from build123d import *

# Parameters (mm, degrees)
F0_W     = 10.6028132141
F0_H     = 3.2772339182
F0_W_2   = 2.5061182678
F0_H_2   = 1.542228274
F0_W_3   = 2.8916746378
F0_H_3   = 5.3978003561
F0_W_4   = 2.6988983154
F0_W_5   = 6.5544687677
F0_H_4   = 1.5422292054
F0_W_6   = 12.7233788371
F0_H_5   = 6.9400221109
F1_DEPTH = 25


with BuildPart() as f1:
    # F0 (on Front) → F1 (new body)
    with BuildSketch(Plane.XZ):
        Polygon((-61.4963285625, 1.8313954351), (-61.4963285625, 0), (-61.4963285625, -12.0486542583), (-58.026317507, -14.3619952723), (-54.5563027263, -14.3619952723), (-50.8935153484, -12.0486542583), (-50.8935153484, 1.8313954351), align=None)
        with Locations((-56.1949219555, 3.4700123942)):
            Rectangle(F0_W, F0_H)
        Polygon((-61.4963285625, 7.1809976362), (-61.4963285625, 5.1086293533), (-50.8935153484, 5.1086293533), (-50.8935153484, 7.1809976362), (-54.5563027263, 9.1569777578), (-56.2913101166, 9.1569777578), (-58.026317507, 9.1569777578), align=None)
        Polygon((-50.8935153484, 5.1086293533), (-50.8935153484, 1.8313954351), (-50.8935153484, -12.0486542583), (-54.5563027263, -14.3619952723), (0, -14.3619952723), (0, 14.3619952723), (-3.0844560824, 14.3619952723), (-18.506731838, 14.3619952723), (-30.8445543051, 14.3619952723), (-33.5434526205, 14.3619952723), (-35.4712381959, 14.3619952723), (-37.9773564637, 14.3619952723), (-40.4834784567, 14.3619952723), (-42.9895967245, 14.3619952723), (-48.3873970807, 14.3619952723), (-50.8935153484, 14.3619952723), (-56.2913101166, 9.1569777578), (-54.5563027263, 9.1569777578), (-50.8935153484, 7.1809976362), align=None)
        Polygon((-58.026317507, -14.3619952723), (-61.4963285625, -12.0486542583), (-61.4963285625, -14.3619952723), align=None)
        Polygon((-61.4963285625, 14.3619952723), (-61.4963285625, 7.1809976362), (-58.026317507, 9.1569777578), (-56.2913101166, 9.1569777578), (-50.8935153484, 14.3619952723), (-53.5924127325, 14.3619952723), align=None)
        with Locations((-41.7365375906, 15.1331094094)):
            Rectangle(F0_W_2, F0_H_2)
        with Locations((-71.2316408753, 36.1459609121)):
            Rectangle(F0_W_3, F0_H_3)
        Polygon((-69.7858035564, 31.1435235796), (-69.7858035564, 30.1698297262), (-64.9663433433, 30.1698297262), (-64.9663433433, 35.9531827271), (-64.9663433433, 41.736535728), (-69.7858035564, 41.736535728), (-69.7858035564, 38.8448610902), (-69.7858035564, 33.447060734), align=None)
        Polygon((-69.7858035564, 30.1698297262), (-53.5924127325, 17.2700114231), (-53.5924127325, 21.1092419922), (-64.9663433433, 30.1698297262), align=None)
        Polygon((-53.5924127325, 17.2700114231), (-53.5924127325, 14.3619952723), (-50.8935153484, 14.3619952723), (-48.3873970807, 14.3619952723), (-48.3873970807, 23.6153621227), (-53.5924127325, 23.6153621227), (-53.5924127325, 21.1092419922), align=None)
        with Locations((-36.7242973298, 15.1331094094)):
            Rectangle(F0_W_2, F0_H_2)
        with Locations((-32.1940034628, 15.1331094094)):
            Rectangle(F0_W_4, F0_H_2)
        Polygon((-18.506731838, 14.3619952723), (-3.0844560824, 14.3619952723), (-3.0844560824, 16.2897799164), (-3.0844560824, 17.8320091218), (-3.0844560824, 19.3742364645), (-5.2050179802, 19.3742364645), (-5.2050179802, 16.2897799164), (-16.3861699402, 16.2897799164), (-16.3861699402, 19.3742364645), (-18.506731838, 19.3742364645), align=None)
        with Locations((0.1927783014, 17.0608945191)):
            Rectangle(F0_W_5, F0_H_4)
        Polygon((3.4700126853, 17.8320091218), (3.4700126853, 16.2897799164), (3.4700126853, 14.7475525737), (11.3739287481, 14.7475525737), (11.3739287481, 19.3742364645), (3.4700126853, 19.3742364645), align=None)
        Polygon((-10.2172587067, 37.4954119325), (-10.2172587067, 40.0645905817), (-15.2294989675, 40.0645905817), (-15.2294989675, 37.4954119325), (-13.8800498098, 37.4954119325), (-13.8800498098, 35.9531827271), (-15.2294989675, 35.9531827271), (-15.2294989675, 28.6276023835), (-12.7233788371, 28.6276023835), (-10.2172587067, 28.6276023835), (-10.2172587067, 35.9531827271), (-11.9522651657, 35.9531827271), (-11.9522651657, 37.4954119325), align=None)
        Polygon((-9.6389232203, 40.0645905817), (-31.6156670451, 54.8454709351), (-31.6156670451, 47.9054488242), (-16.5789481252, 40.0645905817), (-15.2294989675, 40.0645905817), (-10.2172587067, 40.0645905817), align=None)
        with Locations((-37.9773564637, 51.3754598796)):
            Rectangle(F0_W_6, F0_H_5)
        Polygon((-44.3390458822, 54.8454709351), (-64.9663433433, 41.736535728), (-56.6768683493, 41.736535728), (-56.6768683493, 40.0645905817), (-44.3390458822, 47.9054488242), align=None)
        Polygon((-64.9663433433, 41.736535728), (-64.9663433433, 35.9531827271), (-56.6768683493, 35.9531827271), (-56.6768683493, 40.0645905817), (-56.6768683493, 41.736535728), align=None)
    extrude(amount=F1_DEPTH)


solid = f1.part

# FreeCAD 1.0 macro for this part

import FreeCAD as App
import Part
import Sketcher


def add_polygon(sketch, points):
    """Adds a closed chain of lines whose ends are joined by coincident constraints."""
    first, n = sketch.GeometryCount, len(points)
    for a, b in zip(points, points[1:] + points[:1]):
        sketch.addGeometry(Part.LineSegment(App.Vector(*a, 0), App.Vector(*b, 0)), False)
    for i in range(n):
        sketch.addConstraint(Sketcher.Constraint("Coincident", first + i, 2, first + (i + 1) % n, 1))

doc = App.newDocument("Part")
body = doc.addObject("PartDesign::Body", "Body")

# Sketch on XZ plane
sketch1 = body.newObject("Sketcher::SketchObject", "Sketch")
sketch1.AttachmentSupport = (doc.getObject("XZ_Plane"), [""])
sketch1.MapMode = "FlatFace"
add_polygon(sketch1, [(-61.5, 1.8), (-61.5, -14.4), (0, -14.4), (0, 14.4), (-3.1, 14.4), (-3.1, 16.3), (3.5, 16.3), (3.5, 14.7), (11.4, 14.7), (11.4, 19.4), (3.5, 19.4), (3.5, 17.8), (-3.1, 17.8), (-3.1, 19.4), (-5.2, 19.4), (-5.2, 16.3), (-16.4, 16.3), (-16.4, 19.4), (-18.5, 19.4), (-18.5, 14.4), (-30.8, 14.4), (-30.8, 15.9), (-33.5, 15.9), (-33.5, 14.4), (-35.5, 14.4), (-35.5, 15.9), (-38, 15.9), (-38, 14.4), (-40.5, 14.4), (-40.5, 15.9), (-43, 15.9), (-43, 14.4), (-48.4, 14.4), (-48.4, 23.6), (-53.6, 23.6), (-53.6, 21.1), (-65, 30.2), (-65, 36), (-56.7, 36), (-56.7, 40.1), (-44.3, 47.9), (-31.6, 47.9), (-16.6, 40.1), (-15.2, 40.1), (-15.2, 37.5), (-13.9, 37.5), (-13.9, 36), (-15.2, 36), (-15.2, 28.6), (-10.2, 28.6), (-10.2, 36), (-12, 36), (-12, 37.5), (-10.2, 37.5), (-10.2, 40.1), (-9.6, 40.1), (-31.6, 54.8), (-44.3, 54.8), (-65, 41.7), (-69.8, 41.7), (-69.8, 38.8), (-72.7, 38.8), (-72.7, 33.4), (-69.8, 33.4), (-69.8, 30.2), (-53.6, 17.3), (-53.6, 14.4), (-61.5, 14.4), (-61.5, 5.1)])  # lines 0-68
sketch1.addConstraint(Sketcher.Constraint("Vertical", 0))
sketch1.addConstraint(Sketcher.Constraint("Horizontal", 1))
sketch1.addConstraint(Sketcher.Constraint("Vertical", 2))
sketch1.addConstraint(Sketcher.Constraint("Horizontal", 3))
sketch1.addConstraint(Sketcher.Constraint("Vertical", 4))
sketch1.addConstraint(Sketcher.Constraint("Horizontal", 5))
sketch1.addConstraint(Sketcher.Constraint("Vertical", 6))
sketch1.addConstraint(Sketcher.Constraint("Horizontal", 7))
sketch1.addConstraint(Sketcher.Constraint("Vertical", 8))
sketch1.addConstraint(Sketcher.Constraint("Horizontal", 9))
sketch1.addConstraint(Sketcher.Constraint("Vertical", 10))
sketch1.addConstraint(Sketcher.Constraint("Horizontal", 11))
sketch1.addConstraint(Sketcher.Constraint("Vertical", 12))
sketch1.addConstraint(Sketcher.Constraint("Horizontal", 13))
sketch1.addConstraint(Sketcher.Constraint("Vertical", 14))
sketch1.addConstraint(Sketcher.Constraint("Horizontal", 15))
sketch1.addConstraint(Sketcher.Constraint("Vertical", 16))
sketch1.addConstraint(Sketcher.Constraint("Horizontal", 17))
sketch1.addConstraint(Sketcher.Constraint("Vertical", 18))
sketch1.addConstraint(Sketcher.Constraint("Horizontal", 19))
sketch1.addConstraint(Sketcher.Constraint("Vertical", 20))
sketch1.addConstraint(Sketcher.Constraint("Horizontal", 21))
sketch1.addConstraint(Sketcher.Constraint("Vertical", 22))
sketch1.addConstraint(Sketcher.Constraint("Horizontal", 23))
sketch1.addConstraint(Sketcher.Constraint("Vertical", 24))
sketch1.addConstraint(Sketcher.Constraint("Horizontal", 25))
sketch1.addConstraint(Sketcher.Constraint("Vertical", 26))
sketch1.addConstraint(Sketcher.Constraint("Horizontal", 27))
sketch1.addConstraint(Sketcher.Constraint("Vertical", 28))
sketch1.addConstraint(Sketcher.Constraint("Horizontal", 29))
sketch1.addConstraint(Sketcher.Constraint("Vertical", 30))
sketch1.addConstraint(Sketcher.Constraint("Horizontal", 31))
sketch1.addConstraint(Sketcher.Constraint("Vertical", 32))
sketch1.addConstraint(Sketcher.Constraint("Horizontal", 33))
sketch1.addConstraint(Sketcher.Constraint("Vertical", 34))
sketch1.addConstraint(Sketcher.Constraint("Vertical", 36))
sketch1.addConstraint(Sketcher.Constraint("Horizontal", 37))
sketch1.addConstraint(Sketcher.Constraint("Vertical", 38))
sketch1.addConstraint(Sketcher.Constraint("Horizontal", 40))
sketch1.addConstraint(Sketcher.Constraint("Horizontal", 42))
sketch1.addConstraint(Sketcher.Constraint("Vertical", 43))
sketch1.addConstraint(Sketcher.Constraint("Horizontal", 44))
sketch1.addConstraint(Sketcher.Constraint("Vertical", 45))
sketch1.addConstraint(Sketcher.Constraint("Horizontal", 46))
sketch1.addConstraint(Sketcher.Constraint("Vertical", 47))
sketch1.addConstraint(Sketcher.Constraint("Horizontal", 48))
sketch1.addConstraint(Sketcher.Constraint("Vertical", 49))
sketch1.addConstraint(Sketcher.Constraint("Horizontal", 50))
sketch1.addConstraint(Sketcher.Constraint("Vertical", 51))
sketch1.addConstraint(Sketcher.Constraint("Horizontal", 52))
sketch1.addConstraint(Sketcher.Constraint("Vertical", 53))
sketch1.addConstraint(Sketcher.Constraint("Horizontal", 54))
sketch1.addConstraint(Sketcher.Constraint("Horizontal", 56))
sketch1.addConstraint(Sketcher.Constraint("Horizontal", 58))
sketch1.addConstraint(Sketcher.Constraint("Vertical", 59))
sketch1.addConstraint(Sketcher.Constraint("Horizontal", 60))
sketch1.addConstraint(Sketcher.Constraint("Vertical", 61))
sketch1.addConstraint(Sketcher.Constraint("Horizontal", 62))
sketch1.addConstraint(Sketcher.Constraint("Vertical", 63))
sketch1.addConstraint(Sketcher.Constraint("Vertical", 65))
sketch1.addConstraint(Sketcher.Constraint("Horizontal", 66))
sketch1.addConstraint(Sketcher.Constraint("Vertical", 67))
sketch1.addConstraint(Sketcher.Constraint("Vertical", 68))
sketch1.addConstraint(Sketcher.Constraint("Symmetric", 1, 2, 2, 2, -1, 1))
sketch1.addConstraint(Sketcher.Constraint("Parallel", 39, 57))
sketch1.addConstraint(Sketcher.Constraint("Parallel", 35, 64))
sketch1.addConstraint(Sketcher.Constraint("Horizontal", 9, 2, 12, 2))
sketch1.addConstraint(Sketcher.Constraint("Horizontal", 5, 2, 14, 2))
sketch1.addConstraint(Sketcher.Constraint("Horizontal", 13, 2, 16, 2))
sketch1.addConstraint(Sketcher.Constraint("Horizontal", 3, 2, 18, 2))
sketch1.addConstraint(Sketcher.Constraint("Horizontal", 19, 2, 22, 2))
sketch1.addConstraint(Sketcher.Constraint("Horizontal", 21, 2, 24, 2))
sketch1.addConstraint(Sketcher.Constraint("Horizontal", 23, 2, 26, 2))
sketch1.addConstraint(Sketcher.Constraint("Horizontal", 25, 2, 28, 2))
sketch1.addConstraint(Sketcher.Constraint("Horizontal", 27, 2, 30, 2))
sketch1.addConstraint(Sketcher.Constraint("Horizontal", 38, 2, 41, 2))
sketch1.addConstraint(Sketcher.Constraint("Horizontal", 37, 2, 45, 2))
sketch1.addConstraint(Sketcher.Constraint("Horizontal", 46, 2, 49, 2))
sketch1.addConstraint(Sketcher.Constraint("Horizontal", 44, 2, 51, 2))
sketch1.addConstraint(Sketcher.Constraint("Horizontal", 42, 2, 53, 2))
sketch1.addConstraint(Sketcher.Constraint("Horizontal", 35, 2, 63, 2))
sketch1.addConstraint(Sketcher.Constraint("Horizontal", 31, 2, 65, 2))
sketch1.addConstraint(Sketcher.Constraint("Vertical", 6, 2, 9, 2))
sketch1.addConstraint(Sketcher.Constraint("Vertical", 4, 2, 11, 2))
sketch1.addConstraint(Sketcher.Constraint("Vertical", 43, 2, 46, 2))
sketch1.addConstraint(Sketcher.Constraint("Vertical", 49, 2, 52, 2))
sketch1.addConstraint(Sketcher.Constraint("Vertical", 40, 2, 55, 2))
sketch1.addConstraint(Sketcher.Constraint("Vertical", 39, 2, 56, 2))
sketch1.addConstraint(Sketcher.Constraint("Vertical", 36, 2, 57, 2))
sketch1.addConstraint(Sketcher.Constraint("Vertical", 59, 2, 62, 2))
sketch1.addConstraint(Sketcher.Constraint("Vertical", 34, 2, 64, 2))
sketch1.addConstraint(Sketcher.Constraint("Equal", 13, 17))
sketch1.addConstraint(Sketcher.Constraint("Equal", 25, 29))
sketch1.addConstraint(Sketcher.Constraint("Equal", 42, 44))
sketch1.addConstraint(Sketcher.Constraint("Equal", 9, 66))
sketch1.addConstraint(Sketcher.Constraint("Equal", 23, 4))
sketch1.addConstraint(Sketcher.Constraint("Equal", 6, 10))
sketch1.addConstraint(Sketcher.Constraint("Equal", 3, 14))
sketch1.addConstraint(Sketcher.Constraint("Equal", 48, 18))
sketch1.addConstraint(Sketcher.Constraint("Equal", 12, 20))
sketch1.addConstraint(Sketcher.Constraint("Equal", 29, 34))
sketch1.addConstraint(Sketcher.Constraint("Equal", 30, 45))
sketch1.addConstraint(Sketcher.Constraint("Equal", 62, 59))
sketch1.addConstraint(Sketcher.Constraint("Equal", 31, 61))
sketch1.addConstraint(Sketcher.Constraint("Equal", 32, 67))
sketch1.addConstraint(Sketcher.Constraint("DistanceX", 21, 2, 21, 1, 2.698898))
sketch1.addConstraint(Sketcher.Constraint("DistanceX", 31, 2, 31, 1, 5.3978))
sketch1.addConstraint(Sketcher.Constraint("DistanceX", 1, 1, 1, 2, 61.496329))
sketch1.addConstraint(Sketcher.Constraint("DistanceX", 5, 1, 5, 2, 6.554469))
sketch1.addConstraint(Sketcher.Constraint("DistanceX", 13, 2, 13, 1, 2.120562))
sketch1.addConstraint(Sketcher.Constraint("DistanceX", 15, 2, 15, 1, 11.181152))
sketch1.addConstraint(Sketcher.Constraint("DistanceX", 25, 2, 25, 1, 2.506118))
sketch1.addConstraint(Sketcher.Constraint("DistanceX", 27, 2, 27, 1, 2.506122))
sketch1.addConstraint(Sketcher.Constraint("DistanceX", 40, 1, 40, 2, 12.723379))
sketch1.addConstraint(Sketcher.Constraint("DistanceX", 42, 1, 42, 2, 1.349449))
sketch1.addConstraint(Sketcher.Constraint("DistanceX", 48, 1, 48, 2, 5.01224))
sketch1.addConstraint(Sketcher.Constraint("DistanceX", 58, 2, 58, 1, 4.81946))
sketch1.addConstraint(Sketcher.Constraint("DistanceY", 0, 2, 0, 1, 16.193391))
sketch1.addConstraint(Sketcher.Constraint("DistanceY", 2, 1, 2, 2, 28.723991))
sketch1.addConstraint(Sketcher.Constraint("DistanceY", 20, 1, 20, 2, 1.542228))
sketch1.addConstraint(Sketcher.Constraint("DistanceY", 43, 2, 43, 1, 2.569179))
sketch1.addConstraint(Sketcher.Constraint("DistanceY", 47, 2, 47, 1, 7.32558))
sketch1.addConstraint(Sketcher.Constraint("DistanceY", 63, 2, 63, 1, 3.277231))
sketch1.addConstraint(Sketcher.Constraint("DistanceX", 42, 2, -1, 1, 15.229499))
sketch1.addConstraint(Sketcher.Constraint("Distance", 64, 20.703411))
sketch1.addConstraint(Sketcher.Constraint("DistanceX", 3, 2, 3, 1, 3.084456))
sketch1.addConstraint(Sketcher.Constraint("DistanceX", 7, 1, 7, 2, 7.903916))
sketch1.addConstraint(Sketcher.Constraint("DistanceX", 19, 2, 19, 1, 12.337822))
sketch1.addConstraint(Sketcher.Constraint("DistanceX", 37, 1, 37, 2, 8.289475))
sketch1.addConstraint(Sketcher.Constraint("DistanceX", 50, 2, 50, 1, 1.735006))
sketch1.addConstraint(Sketcher.Constraint("DistanceX", 54, 1, 54, 2, 0.578335))
sketch1.addConstraint(Sketcher.Constraint("DistanceX", 60, 2, 60, 1, 2.891675))
sketch1.addConstraint(Sketcher.Constraint("DistanceY", 32, 1, 32, 2, 9.253367))
sketch1.addConstraint(Sketcher.Constraint("DistanceY", 36, 1, 36, 2, 5.783353))
sketch1.addConstraint(Sketcher.Constraint("DistanceY", 65, 2, 65, 1, 2.908016))
sketch1.addConstraint(Sketcher.Constraint("DistanceY", -1, 1, 39, 2, 47.905449))
sketch1.addConstraint(Sketcher.Constraint("DistanceY", -1, 1, 55, 2, 54.845471))
pad1 = body.newObject("PartDesign::Pad", "Pad")
pad1.Profile = sketch1
pad1.Length = 25

doc.recompute()
